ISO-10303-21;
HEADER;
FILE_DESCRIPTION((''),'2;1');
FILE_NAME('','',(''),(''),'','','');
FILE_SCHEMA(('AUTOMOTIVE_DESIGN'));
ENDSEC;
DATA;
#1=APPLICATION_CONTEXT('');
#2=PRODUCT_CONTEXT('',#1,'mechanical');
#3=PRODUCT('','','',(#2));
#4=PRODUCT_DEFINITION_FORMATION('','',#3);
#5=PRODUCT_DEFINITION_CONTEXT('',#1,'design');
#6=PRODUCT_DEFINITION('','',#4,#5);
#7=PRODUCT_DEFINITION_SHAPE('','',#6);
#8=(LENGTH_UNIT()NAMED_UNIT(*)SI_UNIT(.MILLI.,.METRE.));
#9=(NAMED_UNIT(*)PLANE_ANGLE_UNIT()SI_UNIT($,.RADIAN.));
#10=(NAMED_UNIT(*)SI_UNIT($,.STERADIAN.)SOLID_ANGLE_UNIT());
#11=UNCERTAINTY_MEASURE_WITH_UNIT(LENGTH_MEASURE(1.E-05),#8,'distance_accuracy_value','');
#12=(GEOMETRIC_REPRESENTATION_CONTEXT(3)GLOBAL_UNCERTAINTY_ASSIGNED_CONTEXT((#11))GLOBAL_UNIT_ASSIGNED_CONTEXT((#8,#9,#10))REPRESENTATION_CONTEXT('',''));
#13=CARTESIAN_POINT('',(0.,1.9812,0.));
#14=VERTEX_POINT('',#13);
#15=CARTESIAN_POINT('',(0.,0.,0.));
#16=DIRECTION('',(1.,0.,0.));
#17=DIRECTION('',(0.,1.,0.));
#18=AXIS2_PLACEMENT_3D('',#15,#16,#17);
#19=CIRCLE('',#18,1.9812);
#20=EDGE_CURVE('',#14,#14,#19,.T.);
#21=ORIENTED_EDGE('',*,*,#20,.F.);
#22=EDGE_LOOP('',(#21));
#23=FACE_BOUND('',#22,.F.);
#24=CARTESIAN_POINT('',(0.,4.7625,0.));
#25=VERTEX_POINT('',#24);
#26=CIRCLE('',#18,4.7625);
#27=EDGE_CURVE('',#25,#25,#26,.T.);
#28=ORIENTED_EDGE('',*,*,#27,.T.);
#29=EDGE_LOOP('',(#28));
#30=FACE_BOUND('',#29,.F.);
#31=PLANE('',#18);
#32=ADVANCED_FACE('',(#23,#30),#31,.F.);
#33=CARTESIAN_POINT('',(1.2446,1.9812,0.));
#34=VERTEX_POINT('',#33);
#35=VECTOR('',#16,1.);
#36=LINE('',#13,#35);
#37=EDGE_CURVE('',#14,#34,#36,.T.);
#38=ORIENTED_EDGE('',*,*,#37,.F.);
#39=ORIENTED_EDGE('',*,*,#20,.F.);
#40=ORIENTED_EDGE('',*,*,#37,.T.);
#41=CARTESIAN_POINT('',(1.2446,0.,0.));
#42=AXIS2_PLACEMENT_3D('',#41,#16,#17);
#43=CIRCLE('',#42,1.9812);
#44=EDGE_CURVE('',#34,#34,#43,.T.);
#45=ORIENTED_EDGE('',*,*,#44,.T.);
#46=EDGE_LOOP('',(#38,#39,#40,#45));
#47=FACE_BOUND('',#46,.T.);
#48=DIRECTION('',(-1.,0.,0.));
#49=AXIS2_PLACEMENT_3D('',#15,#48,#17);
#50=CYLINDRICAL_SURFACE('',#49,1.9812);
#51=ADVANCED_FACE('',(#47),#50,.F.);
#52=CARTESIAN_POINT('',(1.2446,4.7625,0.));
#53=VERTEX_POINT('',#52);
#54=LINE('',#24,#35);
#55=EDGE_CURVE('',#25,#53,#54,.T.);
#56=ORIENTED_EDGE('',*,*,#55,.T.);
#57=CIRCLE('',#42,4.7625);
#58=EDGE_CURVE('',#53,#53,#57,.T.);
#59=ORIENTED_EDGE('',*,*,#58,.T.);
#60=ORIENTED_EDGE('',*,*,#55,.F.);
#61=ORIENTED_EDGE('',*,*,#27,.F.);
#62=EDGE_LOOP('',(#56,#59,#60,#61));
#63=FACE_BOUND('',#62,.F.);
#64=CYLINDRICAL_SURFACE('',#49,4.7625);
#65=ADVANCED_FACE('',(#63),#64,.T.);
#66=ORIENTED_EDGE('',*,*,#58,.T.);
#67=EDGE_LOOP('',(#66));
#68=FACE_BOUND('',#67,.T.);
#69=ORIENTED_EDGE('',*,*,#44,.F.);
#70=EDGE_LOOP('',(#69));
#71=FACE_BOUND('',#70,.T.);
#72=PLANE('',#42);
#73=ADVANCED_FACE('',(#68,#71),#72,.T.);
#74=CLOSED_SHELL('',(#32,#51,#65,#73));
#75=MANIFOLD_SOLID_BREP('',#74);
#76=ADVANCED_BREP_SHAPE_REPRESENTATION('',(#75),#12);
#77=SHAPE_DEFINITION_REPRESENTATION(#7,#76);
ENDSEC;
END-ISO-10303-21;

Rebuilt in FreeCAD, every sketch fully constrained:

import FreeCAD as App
import Part
import Sketcher
Q = App.Units.Quantity

doc = App.newDocument("Part")
body = doc.addObject("PartDesign::Body", "Body")

sketch1 = doc.addObject("Sketcher::SketchObject", "Sketch")
body.addObject(sketch1)
sketch1.AttachmentSupport = (doc.YZ_Plane, [""])
sketch1.MapMode = "FlatFace"
sketch1.addGeometry(Part.Circle(App.Vector(0, 0, 0), App.Vector(0, 0, 1), 4.8), False)
sketch1.addGeometry(Part.Circle(App.Vector(0, 0, 0), App.Vector(0, 0, 1), 2), False)
sketch1.addConstraint(Sketcher.Constraint("Coincident", 0, 3, -1, 1))
sketch1.addConstraint(Sketcher.Constraint("Coincident", 1, 3, -1, 1))
sketch1.addConstraint(Sketcher.Constraint("Diameter", 0, Q("0.375 in")))
sketch1.addConstraint(Sketcher.Constraint("Diameter", 1, Q("0.156 in")))
pad1 = doc.addObject("PartDesign::Pad", "Pad")
body.addObject(pad1)
pad1.Profile = sketch1
pad1.Length = Q("0.049 in")

doc.recompute()
